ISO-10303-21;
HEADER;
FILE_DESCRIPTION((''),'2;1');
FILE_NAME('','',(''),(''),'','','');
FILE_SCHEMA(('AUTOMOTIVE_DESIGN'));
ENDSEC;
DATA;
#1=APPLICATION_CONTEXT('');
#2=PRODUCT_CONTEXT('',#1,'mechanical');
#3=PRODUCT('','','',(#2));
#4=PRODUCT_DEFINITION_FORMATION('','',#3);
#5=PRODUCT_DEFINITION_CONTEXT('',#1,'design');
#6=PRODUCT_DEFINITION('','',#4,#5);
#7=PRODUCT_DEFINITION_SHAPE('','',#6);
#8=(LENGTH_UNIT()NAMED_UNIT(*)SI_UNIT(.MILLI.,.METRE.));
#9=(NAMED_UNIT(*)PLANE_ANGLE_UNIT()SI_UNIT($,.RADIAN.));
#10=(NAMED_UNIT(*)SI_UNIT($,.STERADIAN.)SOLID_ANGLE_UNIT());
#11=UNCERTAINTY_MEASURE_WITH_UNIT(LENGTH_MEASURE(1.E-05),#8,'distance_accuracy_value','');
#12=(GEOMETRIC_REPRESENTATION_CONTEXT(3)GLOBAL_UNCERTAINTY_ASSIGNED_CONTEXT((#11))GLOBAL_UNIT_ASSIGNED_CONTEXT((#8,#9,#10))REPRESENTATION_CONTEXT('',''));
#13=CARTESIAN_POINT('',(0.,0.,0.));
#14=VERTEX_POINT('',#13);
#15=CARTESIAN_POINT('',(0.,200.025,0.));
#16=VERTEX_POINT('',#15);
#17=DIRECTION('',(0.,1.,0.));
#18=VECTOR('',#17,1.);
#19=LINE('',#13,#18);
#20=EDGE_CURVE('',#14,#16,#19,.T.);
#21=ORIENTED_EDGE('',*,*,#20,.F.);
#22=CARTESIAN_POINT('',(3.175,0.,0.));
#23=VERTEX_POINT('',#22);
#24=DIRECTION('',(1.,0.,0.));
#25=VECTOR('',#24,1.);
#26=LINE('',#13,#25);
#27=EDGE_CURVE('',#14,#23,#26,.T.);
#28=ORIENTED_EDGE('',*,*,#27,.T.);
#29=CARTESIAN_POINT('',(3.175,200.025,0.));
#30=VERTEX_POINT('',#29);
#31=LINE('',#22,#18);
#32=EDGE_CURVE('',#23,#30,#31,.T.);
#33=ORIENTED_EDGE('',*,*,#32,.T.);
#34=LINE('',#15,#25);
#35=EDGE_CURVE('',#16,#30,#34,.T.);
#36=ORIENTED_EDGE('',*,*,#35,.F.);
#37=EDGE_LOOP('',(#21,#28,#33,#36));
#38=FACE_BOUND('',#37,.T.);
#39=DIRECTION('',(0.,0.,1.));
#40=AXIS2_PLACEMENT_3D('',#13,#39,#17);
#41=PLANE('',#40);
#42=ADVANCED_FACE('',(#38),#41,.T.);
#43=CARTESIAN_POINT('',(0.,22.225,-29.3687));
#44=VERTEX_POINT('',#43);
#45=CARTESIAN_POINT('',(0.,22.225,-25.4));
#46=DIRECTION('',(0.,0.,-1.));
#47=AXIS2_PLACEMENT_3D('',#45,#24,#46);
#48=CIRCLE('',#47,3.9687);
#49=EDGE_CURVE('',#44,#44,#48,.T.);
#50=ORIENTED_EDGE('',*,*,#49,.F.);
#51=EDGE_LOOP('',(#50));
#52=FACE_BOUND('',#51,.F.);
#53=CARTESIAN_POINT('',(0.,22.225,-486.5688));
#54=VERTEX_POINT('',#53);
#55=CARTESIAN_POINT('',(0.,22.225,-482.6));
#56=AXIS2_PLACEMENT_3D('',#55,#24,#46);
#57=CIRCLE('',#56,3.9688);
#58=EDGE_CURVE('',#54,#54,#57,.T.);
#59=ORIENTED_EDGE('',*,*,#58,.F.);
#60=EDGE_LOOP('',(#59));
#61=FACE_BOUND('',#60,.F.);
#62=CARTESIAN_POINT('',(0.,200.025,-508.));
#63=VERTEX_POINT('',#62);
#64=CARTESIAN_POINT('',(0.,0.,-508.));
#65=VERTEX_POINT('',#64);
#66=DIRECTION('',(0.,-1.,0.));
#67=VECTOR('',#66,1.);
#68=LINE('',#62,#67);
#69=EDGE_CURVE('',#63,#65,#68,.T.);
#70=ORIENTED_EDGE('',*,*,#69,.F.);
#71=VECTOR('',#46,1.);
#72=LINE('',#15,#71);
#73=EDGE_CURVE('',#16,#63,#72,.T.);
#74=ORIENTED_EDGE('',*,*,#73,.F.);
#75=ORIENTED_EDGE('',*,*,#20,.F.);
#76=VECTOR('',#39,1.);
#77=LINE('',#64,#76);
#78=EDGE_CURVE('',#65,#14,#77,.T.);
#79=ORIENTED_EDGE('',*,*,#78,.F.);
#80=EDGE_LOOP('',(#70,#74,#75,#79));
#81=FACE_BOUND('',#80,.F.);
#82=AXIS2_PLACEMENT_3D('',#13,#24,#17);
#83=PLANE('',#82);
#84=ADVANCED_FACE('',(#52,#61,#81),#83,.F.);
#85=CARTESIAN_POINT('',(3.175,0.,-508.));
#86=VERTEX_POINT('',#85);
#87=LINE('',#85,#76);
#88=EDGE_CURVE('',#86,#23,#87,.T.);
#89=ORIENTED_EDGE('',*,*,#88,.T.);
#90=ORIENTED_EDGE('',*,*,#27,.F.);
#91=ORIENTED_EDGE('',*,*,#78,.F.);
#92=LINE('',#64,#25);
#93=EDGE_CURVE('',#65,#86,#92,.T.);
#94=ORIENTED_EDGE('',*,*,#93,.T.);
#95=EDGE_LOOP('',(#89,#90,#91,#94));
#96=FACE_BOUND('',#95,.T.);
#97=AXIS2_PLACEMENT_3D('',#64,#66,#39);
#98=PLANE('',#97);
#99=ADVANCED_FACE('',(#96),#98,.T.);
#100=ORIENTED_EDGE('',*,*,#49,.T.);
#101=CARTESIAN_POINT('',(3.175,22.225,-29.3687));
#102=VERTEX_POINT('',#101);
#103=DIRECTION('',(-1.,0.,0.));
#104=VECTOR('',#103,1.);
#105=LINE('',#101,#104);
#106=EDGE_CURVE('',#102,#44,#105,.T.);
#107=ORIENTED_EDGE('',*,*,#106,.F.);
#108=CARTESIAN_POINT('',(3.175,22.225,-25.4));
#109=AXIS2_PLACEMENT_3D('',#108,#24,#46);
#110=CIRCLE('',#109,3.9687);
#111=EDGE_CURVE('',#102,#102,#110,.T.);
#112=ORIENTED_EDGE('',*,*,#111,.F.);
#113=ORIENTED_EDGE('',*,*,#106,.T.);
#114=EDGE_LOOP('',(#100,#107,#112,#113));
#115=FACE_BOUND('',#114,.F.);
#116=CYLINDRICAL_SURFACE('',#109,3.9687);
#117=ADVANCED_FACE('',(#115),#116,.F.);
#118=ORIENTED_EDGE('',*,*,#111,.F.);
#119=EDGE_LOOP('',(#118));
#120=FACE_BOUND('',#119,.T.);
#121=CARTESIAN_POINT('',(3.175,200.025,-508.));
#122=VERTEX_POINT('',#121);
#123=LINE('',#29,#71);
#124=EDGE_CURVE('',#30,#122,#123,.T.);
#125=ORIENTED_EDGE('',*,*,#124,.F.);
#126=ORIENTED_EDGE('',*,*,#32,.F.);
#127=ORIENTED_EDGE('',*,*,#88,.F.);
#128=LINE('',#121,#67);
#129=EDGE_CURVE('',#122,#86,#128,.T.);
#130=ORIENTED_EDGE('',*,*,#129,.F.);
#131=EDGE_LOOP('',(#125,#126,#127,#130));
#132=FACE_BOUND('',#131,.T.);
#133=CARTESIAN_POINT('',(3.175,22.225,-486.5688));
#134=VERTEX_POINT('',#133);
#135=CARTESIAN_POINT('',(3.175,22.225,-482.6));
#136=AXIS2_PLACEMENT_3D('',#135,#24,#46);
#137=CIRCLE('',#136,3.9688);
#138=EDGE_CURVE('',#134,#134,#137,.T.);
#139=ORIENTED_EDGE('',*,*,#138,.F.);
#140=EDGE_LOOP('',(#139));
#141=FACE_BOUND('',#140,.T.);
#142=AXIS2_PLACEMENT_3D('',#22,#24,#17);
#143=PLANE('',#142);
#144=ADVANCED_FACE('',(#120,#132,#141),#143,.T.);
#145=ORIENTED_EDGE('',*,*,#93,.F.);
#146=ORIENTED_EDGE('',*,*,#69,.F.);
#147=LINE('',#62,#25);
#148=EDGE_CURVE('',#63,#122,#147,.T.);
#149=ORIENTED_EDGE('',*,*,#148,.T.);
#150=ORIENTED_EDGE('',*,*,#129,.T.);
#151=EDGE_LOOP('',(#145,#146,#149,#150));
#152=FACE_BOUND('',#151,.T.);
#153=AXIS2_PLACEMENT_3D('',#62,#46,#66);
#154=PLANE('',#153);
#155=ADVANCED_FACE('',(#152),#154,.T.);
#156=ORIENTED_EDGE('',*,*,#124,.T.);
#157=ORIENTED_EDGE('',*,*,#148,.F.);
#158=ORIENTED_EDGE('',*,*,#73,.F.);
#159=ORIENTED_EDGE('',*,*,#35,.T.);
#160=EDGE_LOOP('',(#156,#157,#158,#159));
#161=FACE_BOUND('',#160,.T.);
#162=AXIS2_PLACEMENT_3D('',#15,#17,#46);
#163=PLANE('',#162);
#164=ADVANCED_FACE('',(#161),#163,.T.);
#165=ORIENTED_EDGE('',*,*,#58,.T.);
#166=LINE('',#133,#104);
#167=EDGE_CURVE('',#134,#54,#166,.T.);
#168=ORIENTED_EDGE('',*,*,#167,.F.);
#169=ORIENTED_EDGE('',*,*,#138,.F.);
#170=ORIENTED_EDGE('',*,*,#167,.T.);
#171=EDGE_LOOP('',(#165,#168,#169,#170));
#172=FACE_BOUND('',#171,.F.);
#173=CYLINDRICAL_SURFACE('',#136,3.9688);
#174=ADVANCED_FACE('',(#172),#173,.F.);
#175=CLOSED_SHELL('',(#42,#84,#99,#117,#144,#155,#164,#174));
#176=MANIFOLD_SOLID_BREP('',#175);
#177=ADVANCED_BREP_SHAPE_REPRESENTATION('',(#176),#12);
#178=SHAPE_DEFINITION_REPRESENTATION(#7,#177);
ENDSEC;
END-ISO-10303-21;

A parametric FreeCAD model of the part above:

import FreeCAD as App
import Part
import Sketcher
Q = App.Units.Quantity

doc = App.newDocument("Part")
body = doc.addObject("PartDesign::Body", "Body")

sketch1 = body.newObject("Sketcher::SketchObject", "Sketch")
sketch1.AttachmentSupport = (doc.getObject("YZ_Plane"), [""])
sketch1.MapMode = "FlatFace"
sketch1.addGeometry([
    Part.LineSegment(App.Vector(200, 0, 0), App.Vector(0, 0, 0)),
    Part.LineSegment(App.Vector(0, 0, 0), App.Vector(0, -508, 0)),
    Part.LineSegment(App.Vector(0, -508, 0), App.Vector(200, -508, 0)),
    Part.LineSegment(App.Vector(200, -508, 0), App.Vector(200, 0, 0)),
], False)
sketch1.addConstraint([
    Sketcher.Constraint("Coincident", 0, 2, 1, 1),
    Sketcher.Constraint("Coincident", 1, 2, 2, 1),
    Sketcher.Constraint("Coincident", 2, 2, 3, 1),
    Sketcher.Constraint("Coincident", 3, 2, 0, 1),
    Sketcher.Constraint("Horizontal", 0),
    Sketcher.Constraint("Vertical", 1),
    Sketcher.Constraint("Horizontal", 2),
    Sketcher.Constraint("Vertical", 3),
    Sketcher.Constraint("Coincident", 0, 2, -1, 1),
    Sketcher.Constraint("DistanceY", 1, 2, 1, 1, Q("20 in")),
    Sketcher.Constraint("DistanceX", 0, 2, 0, 1, Q("7.875 in")),
])
pad1 = body.newObject("PartDesign::Pad", "Pad")
pad1.Profile = sketch1
pad1.Length = Q("0.125 in")

sketch2 = body.newObject("Sketcher::SketchObject", "Sketch001")
sketch2.AttachmentSupport = (doc.getObject("YZ_Plane"), [""])
sketch2.MapMode = "FlatFace"
sketch2.AttachmentOffset = App.Placement(App.Vector(0, 0, 0.125 * 25.4), App.Rotation())
sketch2.addGeometry(Part.Circle(App.Vector(22.2, -25.4, 0), App.Vector(0, 0, 1), 2), False)
sketch2.addConstraint([
    Sketcher.Constraint("Diameter", 0, Q("0.156252 in")),
    Sketcher.Constraint("DistanceY", 0, 3, -1, 1, Q("1 in")),
    Sketcher.Constraint("DistanceX", -1, 1, 0, 3, Q("0.875 in")),
])
pocket1 = body.newObject("PartDesign::Pocket", "Pocket")
pocket1.Profile = sketch2
pocket1.Length = Q("0.125 in")

sketch3 = body.newObject("Sketcher::SketchObject", "Sketch002")
sketch3.AttachmentSupport = (doc.getObject("YZ_Plane"), [""])
sketch3.MapMode = "FlatFace"
sketch3.AttachmentOffset = App.Placement(App.Vector(0, 0, 0.125 * 25.4), App.Rotation())
sketch3.addGeometry(Part.Circle(App.Vector(22.2, -482.6, 0), App.Vector(0, 0, 1), 2), False)
sketch3.addConstraint([
    Sketcher.Constraint("Diameter", 0, Q("0.156252 in")),
    Sketcher.Constraint("DistanceX", -1, 1, 0, 3, Q("0.875 in")),
    Sketcher.Constraint("DistanceY", 0, 3, -1, 1, Q("19 in")),
])
pocket2 = body.newObject("PartDesign::Pocket", "Pocket001")
pocket2.Profile = sketch3
pocket2.Length = Q("0.125 in")

sketch4 = body.newObject("Sketcher::SketchObject", "Sketch003")
sketch4.AttachmentSupport = (doc.getObject("YZ_Plane"), [""])
sketch4.MapMode = "FlatFace"
sketch4.AttachmentOffset = App.Placement(App.Vector(0, 0, 0.125 * 25.4), App.Rotation())
sketch4.addGeometry([
    Part.Circle(App.Vector(22.2, -25.4, 0), App.Vector(0, 0, 1), 4),
    Part.Circle(App.Vector(22.2, -25.4, 0), App.Vector(0, 0, 1), 2),
], False)
sketch4.addConstraint([
    Sketcher.Constraint("Coincident", 1, 3, 0, 3),
    Sketcher.Constraint("Diameter", 0, Q("0.3125 in")),
    Sketcher.Constraint("Diameter", 1, Q("0.156252 in")),
    Sketcher.Constraint("DistanceY", 0, 3, -1, 1, Q("1 in")),
    Sketcher.Constraint("DistanceX", -1, 1, 0, 3, Q("0.875 in")),
])
pocket3 = body.newObject("PartDesign::Pocket", "Pocket002")
pocket3.Profile = sketch4
pocket3.Length = Q("0.125 in")

sketch5 = body.newObject("Sketcher::SketchObject", "Sketch004")
sketch5.AttachmentSupport = (doc.getObject("YZ_Plane"), [""])
sketch5.MapMode = "FlatFace"
sketch5.AttachmentOffset = App.Placement(App.Vector(0, 0, 0.125 * 25.4), App.Rotation())
sketch5.addGeometry([
    Part.Circle(App.Vector(22.2, -482.6, 0), App.Vector(0, 0, 1), 4),
    Part.Circle(App.Vector(22.2, -482.6, 0), App.Vector(0, 0, 1), 2),
], False)
sketch5.addConstraint([
    Sketcher.Constraint("Coincident", 1, 3, 0, 3),
    Sketcher.Constraint("Diameter", 0, Q("0.3125 in")),
    Sketcher.Constraint("Diameter", 1, Q("0.156252 in")),
    Sketcher.Constraint("DistanceY", 0, 3, -1, 1, Q("19 in")),
    Sketcher.Constraint("DistanceX", -1, 1, 0, 3, Q("0.875 in")),
])
pocket4 = body.newObject("PartDesign::Pocket", "Pocket003")
pocket4.Profile = sketch5
pocket4.Length = Q("0.125 in")

doc.recompute()
